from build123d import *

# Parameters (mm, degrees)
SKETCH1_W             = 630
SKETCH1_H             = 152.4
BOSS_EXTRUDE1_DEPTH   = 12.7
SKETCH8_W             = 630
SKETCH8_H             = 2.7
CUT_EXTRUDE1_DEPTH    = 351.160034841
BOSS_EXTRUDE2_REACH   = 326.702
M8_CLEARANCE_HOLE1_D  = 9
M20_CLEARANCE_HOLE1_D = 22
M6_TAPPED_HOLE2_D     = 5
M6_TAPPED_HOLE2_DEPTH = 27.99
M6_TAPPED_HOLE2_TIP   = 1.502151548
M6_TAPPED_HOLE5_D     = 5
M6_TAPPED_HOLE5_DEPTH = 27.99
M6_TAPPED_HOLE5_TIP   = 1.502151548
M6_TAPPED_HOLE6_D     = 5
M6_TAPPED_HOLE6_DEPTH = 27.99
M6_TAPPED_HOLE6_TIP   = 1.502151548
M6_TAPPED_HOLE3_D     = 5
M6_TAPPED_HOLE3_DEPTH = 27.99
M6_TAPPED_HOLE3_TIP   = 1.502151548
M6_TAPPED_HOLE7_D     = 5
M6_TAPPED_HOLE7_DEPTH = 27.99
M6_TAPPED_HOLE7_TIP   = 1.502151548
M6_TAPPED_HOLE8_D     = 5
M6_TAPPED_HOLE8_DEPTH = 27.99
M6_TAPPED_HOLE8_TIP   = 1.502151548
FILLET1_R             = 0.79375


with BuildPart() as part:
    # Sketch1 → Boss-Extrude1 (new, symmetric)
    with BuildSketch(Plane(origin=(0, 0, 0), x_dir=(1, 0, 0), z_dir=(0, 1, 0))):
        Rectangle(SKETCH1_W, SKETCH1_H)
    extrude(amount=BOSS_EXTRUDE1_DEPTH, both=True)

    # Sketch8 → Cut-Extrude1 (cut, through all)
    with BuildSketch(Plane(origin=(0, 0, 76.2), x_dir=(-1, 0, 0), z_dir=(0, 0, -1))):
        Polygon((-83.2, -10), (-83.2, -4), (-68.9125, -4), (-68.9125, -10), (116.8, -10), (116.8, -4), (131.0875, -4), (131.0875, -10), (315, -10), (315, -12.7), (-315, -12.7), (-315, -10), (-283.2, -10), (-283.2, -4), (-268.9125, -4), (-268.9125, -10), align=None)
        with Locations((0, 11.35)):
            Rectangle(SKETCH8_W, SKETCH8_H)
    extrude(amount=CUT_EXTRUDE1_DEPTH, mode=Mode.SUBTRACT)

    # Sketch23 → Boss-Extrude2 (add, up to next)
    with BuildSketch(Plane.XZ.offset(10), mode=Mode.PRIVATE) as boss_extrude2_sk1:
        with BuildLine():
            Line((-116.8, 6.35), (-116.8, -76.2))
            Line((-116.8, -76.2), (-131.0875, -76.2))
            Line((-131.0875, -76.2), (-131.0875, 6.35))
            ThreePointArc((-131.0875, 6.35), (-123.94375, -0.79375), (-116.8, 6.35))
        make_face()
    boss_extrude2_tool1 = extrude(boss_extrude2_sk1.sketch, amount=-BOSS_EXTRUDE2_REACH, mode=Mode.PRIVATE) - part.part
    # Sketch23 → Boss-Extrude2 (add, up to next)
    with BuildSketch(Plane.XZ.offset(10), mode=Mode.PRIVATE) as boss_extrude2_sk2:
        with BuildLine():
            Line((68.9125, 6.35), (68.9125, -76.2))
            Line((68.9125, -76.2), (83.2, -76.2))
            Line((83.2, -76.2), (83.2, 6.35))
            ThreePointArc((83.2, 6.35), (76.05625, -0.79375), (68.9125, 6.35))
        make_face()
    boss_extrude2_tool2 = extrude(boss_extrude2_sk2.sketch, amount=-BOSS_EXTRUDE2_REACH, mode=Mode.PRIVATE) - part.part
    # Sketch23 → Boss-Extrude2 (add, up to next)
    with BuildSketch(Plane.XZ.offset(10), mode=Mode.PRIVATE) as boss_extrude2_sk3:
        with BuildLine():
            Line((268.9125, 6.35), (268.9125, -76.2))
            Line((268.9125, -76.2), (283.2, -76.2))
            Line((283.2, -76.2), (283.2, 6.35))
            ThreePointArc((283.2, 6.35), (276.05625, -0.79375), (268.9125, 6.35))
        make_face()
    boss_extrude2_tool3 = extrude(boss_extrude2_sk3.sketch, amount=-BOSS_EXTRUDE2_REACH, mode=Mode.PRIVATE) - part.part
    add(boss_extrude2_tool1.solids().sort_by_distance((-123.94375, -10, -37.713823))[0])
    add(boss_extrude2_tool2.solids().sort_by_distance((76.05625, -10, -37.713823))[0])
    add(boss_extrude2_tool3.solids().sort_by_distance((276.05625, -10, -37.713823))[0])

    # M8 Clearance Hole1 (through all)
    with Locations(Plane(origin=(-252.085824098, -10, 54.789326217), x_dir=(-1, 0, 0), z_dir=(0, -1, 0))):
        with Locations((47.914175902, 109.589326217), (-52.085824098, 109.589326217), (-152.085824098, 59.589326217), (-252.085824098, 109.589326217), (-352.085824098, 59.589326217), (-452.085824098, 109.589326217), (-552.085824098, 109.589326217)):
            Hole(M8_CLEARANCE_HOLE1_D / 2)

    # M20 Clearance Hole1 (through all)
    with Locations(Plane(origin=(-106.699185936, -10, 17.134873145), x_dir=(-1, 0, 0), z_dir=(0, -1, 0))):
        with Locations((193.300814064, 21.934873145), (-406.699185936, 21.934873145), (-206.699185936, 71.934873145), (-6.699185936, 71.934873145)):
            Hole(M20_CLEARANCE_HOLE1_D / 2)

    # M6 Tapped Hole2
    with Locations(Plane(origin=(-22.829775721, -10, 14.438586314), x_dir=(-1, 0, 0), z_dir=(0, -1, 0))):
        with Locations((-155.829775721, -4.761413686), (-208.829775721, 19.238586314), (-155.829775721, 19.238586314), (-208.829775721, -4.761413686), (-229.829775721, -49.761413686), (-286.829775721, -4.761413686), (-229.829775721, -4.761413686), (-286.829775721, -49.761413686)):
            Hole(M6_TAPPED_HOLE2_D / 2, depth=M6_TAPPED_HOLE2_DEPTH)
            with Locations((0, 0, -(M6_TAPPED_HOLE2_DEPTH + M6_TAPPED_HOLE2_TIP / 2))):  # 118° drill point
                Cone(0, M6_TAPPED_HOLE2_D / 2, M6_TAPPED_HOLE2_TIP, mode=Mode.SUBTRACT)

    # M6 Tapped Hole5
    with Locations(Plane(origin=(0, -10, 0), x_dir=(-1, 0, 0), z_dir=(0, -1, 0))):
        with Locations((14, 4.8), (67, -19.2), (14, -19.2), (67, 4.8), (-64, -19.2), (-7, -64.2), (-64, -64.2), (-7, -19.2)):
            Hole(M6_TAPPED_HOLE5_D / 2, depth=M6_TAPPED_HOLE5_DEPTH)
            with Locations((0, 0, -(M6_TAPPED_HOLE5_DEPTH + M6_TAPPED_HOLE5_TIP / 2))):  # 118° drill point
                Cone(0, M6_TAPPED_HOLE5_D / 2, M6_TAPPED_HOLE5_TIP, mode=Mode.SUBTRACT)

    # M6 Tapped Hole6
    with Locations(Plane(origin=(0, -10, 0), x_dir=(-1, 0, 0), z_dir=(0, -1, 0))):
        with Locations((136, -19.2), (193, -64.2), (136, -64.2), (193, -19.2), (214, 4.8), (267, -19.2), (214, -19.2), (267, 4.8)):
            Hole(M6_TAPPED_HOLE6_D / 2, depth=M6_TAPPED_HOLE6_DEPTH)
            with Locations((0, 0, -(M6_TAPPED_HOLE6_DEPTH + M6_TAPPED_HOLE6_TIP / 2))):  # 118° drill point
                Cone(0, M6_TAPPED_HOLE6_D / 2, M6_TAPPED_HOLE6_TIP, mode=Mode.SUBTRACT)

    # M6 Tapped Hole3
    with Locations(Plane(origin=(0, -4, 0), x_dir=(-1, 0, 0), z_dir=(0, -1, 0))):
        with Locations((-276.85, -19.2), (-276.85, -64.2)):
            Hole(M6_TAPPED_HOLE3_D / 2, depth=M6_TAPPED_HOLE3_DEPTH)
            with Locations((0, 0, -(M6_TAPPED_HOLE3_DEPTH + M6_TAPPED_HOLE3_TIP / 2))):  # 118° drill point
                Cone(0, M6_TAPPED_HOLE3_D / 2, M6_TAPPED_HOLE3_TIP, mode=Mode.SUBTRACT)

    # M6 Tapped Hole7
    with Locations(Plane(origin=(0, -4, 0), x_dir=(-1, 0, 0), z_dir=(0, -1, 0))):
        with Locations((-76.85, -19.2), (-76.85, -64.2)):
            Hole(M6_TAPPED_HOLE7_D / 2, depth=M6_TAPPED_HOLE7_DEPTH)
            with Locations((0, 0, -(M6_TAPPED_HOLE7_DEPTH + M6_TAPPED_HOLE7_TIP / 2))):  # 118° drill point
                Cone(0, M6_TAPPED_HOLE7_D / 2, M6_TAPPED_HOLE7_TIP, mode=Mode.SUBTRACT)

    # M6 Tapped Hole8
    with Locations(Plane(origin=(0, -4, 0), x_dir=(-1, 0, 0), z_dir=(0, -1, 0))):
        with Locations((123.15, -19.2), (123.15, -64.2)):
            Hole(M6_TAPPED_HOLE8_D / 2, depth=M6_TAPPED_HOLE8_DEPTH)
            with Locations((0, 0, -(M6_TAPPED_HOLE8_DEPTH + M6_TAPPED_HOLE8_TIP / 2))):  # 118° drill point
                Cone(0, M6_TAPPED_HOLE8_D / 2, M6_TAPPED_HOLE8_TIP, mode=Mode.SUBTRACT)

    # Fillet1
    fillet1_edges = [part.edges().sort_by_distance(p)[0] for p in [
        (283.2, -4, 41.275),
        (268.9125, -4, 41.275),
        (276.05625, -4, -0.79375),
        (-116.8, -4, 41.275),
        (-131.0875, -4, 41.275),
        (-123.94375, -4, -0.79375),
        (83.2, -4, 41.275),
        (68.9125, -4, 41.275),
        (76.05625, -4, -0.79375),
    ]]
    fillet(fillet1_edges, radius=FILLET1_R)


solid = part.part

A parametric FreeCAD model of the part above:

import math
import FreeCAD as App
import Part
import Sketcher
Q = App.Units.Quantity


def edges_at(feature, points):
    """Names of the edges that pass closest to the given points."""
    edges = feature.Shape.Edges
    near = lambda p: min(range(len(edges)), key=lambda i: edges[i].distToShape(Part.Vertex(*p))[0])
    return sorted({f"Edge{near(p) + 1}" for p in points})

doc = App.newDocument("Part")
body = doc.addObject("PartDesign::Body", "Body")

sketch1 = body.newObject("Sketcher::SketchObject", "Sketch")
sketch1.AttachmentSupport = (doc.getObject("XZ_Plane"), [""])
sketch1.MapMode = "FlatFace"
sketch1.addGeometry([
    Part.LineSegment(App.Vector(-315, -76, 0), App.Vector(-315, 76, 0)),
    Part.LineSegment(App.Vector(-315, 76, 0), App.Vector(315, 76, 0)),
    Part.LineSegment(App.Vector(315, 76, 0), App.Vector(315, -76, 0)),
    Part.LineSegment(App.Vector(315, -76, 0), App.Vector(-315, -76, 0)),
], False)
sketch1.addConstraint([
    Sketcher.Constraint("Coincident", 0, 2, 1, 1),
    Sketcher.Constraint("Coincident", 1, 2, 2, 1),
    Sketcher.Constraint("Coincident", 2, 2, 3, 1),
    Sketcher.Constraint("Coincident", 3, 2, 0, 1),
    Sketcher.Constraint("Vertical", 0),
    Sketcher.Constraint("Horizontal", 1),
    Sketcher.Constraint("Vertical", 2),
    Sketcher.Constraint("Horizontal", 3),
    Sketcher.Constraint("Symmetric", 0, 2, 2, 2, -1, 1),
    Sketcher.Constraint("DistanceX", 1, 1, 1, 2, Q("630 mm")),
    Sketcher.Constraint("DistanceY", 0, 1, 0, 2, Q("152.4 mm")),
])
pad1 = body.newObject("PartDesign::Pad", "Pad")
pad1.Profile = sketch1
pad1.Length = 25.4
pad1.Midplane = True

sketch2 = body.newObject("Sketcher::SketchObject", "Sketch001")
sketch2.AttachmentSupport = (doc.getObject("XY_Plane"), [""])
sketch2.MapMode = "FlatFace"
sketch2.AttachmentOffset = App.Placement(App.Vector(0, 0, 76.2), App.Rotation())
sketch2.addGeometry([
    Part.LineSegment(App.Vector(83.2, -4, 0), App.Vector(83.2, -10, 0)),
    Part.LineSegment(App.Vector(83.2, -10, 0), App.Vector(268.9, -10, 0)),
    Part.LineSegment(App.Vector(268.9, -10, 0), App.Vector(268.9, -4, 0)),
    Part.LineSegment(App.Vector(268.9, -4, 0), App.Vector(283.2, -4, 0)),
    Part.LineSegment(App.Vector(283.2, -4, 0), App.Vector(283.2, -10, 0)),
    Part.LineSegment(App.Vector(283.2, -10, 0), App.Vector(315, -10, 0)),
    Part.LineSegment(App.Vector(315, -10, 0), App.Vector(315, -12.7, 0)),
    Part.LineSegment(App.Vector(315, -12.7, 0), App.Vector(-315, -12.7, 0)),
    Part.LineSegment(App.Vector(-315, -12.7, 0), App.Vector(-315, -10, 0)),
    Part.LineSegment(App.Vector(-315, -10, 0), App.Vector(-131.1, -10, 0)),
    Part.LineSegment(App.Vector(-131.1, -10, 0), App.Vector(-131.1, -4, 0)),
    Part.LineSegment(App.Vector(-131.1, -4, 0), App.Vector(-116.8, -4, 0)),
    Part.LineSegment(App.Vector(-116.8, -4, 0), App.Vector(-116.8, -10, 0)),
    Part.LineSegment(App.Vector(-116.8, -10, 0), App.Vector(68.9, -10, 0)),
    Part.LineSegment(App.Vector(68.9, -10, 0), App.Vector(68.9, -4, 0)),
    Part.LineSegment(App.Vector(68.9, -4, 0), App.Vector(83.2, -4, 0)),
    Part.LineSegment(App.Vector(315, 12.7, 0), App.Vector(315, 10, 0)),
    Part.LineSegment(App.Vector(315, 10, 0), App.Vector(-315, 10, 0)),
    Part.LineSegment(App.Vector(-315, 10, 0), App.Vector(-315, 12.7, 0)),
    Part.LineSegment(App.Vector(-315, 12.7, 0), App.Vector(315, 12.7, 0)),
], False)
sketch2.addConstraint([
    Sketcher.Constraint("Coincident", 0, 2, 1, 1),
    Sketcher.Constraint("Coincident", 1, 2, 2, 1),
    Sketcher.Constraint("Coincident", 2, 2, 3, 1),
    Sketcher.Constraint("Coincident", 3, 2, 4, 1),
    Sketcher.Constraint("Coincident", 4, 2, 5, 1),
    Sketcher.Constraint("Coincident", 5, 2, 6, 1),
    Sketcher.Constraint("Coincident", 6, 2, 7, 1),
    Sketcher.Constraint("Coincident", 7, 2, 8, 1),
    Sketcher.Constraint("Coincident", 8, 2, 9, 1),
    Sketcher.Constraint("Coincident", 9, 2, 10, 1),
    Sketcher.Constraint("Coincident", 10, 2, 11, 1),
    Sketcher.Constraint("Coincident", 11, 2, 12, 1),
    Sketcher.Constraint("Coincident", 12, 2, 13, 1),
    Sketcher.Constraint("Coincident", 13, 2, 14, 1),
    Sketcher.Constraint("Coincident", 14, 2, 15, 1),
    Sketcher.Constraint("Coincident", 15, 2, 0, 1),
    Sketcher.Constraint("Coincident", 16, 2, 17, 1),
    Sketcher.Constraint("Coincident", 17, 2, 18, 1),
    Sketcher.Constraint("Coincident", 18, 2, 19, 1),
    Sketcher.Constraint("Coincident", 19, 2, 16, 1),
    Sketcher.Constraint("Vertical", 0),
    Sketcher.Constraint("Horizontal", 1),
    Sketcher.Constraint("Vertical", 2),
    Sketcher.Constraint("Horizontal", 3),
    Sketcher.Constraint("Vertical", 4),
    Sketcher.Constraint("Horizontal", 5),
    Sketcher.Constraint("Vertical", 6),
    Sketcher.Constraint("Horizontal", 7),
    Sketcher.Constraint("Vertical", 8),
    Sketcher.Constraint("Horizontal", 9),
    Sketcher.Constraint("Vertical", 10),
    Sketcher.Constraint("Horizontal", 11),
    Sketcher.Constraint("Vertical", 12),
    Sketcher.Constraint("Horizontal", 13),
    Sketcher.Constraint("Vertical", 14),
    Sketcher.Constraint("Horizontal", 15),
    Sketcher.Constraint("Vertical", 16),
    Sketcher.Constraint("Horizontal", 17),
    Sketcher.Constraint("Vertical", 18),
    Sketcher.Constraint("Horizontal", 19),
    Sketcher.Constraint("Symmetric", 8, 2, 16, 2, -1, 1),
    Sketcher.Constraint("Symmetric", 5, 2, 17, 2, -1, 1),
    Sketcher.Constraint("Symmetric", 7, 2, 18, 2, -1),
    Sketcher.Constraint("Horizontal", 1, 2, 4, 2),
    Sketcher.Constraint("Horizontal", 3, 2, 10, 2),
    Sketcher.Constraint("Horizontal", 9, 2, 12, 2),
    Sketcher.Constraint("Horizontal", 11, 2, 14, 2),
    Sketcher.Constraint("Equal", 3, 11),
    Sketcher.Constraint("Equal", 1, 13),
    Sketcher.Constraint("Equal", 11, 15),
    Sketcher.Constraint("DistanceX", 7, 2, 7, 1, Q("630 mm")),
    Sketcher.Constraint("DistanceY", 0, 2, 0, 1, Q("6 mm")),
    Sketcher.Constraint("DistanceX", 5, 1, 5, 2, Q("31.8 mm")),
    Sketcher.Constraint("DistanceY", 6, 2, 6, 1, Q("2.7 mm")),
    Sketcher.Constraint("DistanceY", 0, 2, -1, 1, Q("10 mm")),
    Sketcher.Constraint("DistanceX", 0, 2, 3, 2, Q("200 mm")),
    Sketcher.Constraint("DistanceX", 1, 1, 1, 2, Q("185.7125 mm")),
])
pocket1 = body.newObject("PartDesign::Pocket", "Pocket")
pocket1.Profile = sketch2
pocket1.Type = "ThroughAll"

sketch3 = body.newObject("Sketcher::SketchObject", "Sketch002")
sketch3.AttachmentSupport = (doc.getObject("XZ_Plane"), [""])
sketch3.MapMode = "FlatFace"
sketch3.AttachmentOffset = App.Placement(App.Vector(0, 0, 10), App.Rotation())
sketch3.addGeometry([
    Part.LineSegment(App.Vector(-117, -76, 0), App.Vector(-117, 6, 0)),
    Part.ArcOfCircle(Part.Circle(App.Vector(-124, 6, 0), App.Vector(0, 0, 1), 7), math.radians(180), math.radians(360)),
    Part.LineSegment(App.Vector(-131, 6, 0), App.Vector(-131, -76, 0)),
    Part.LineSegment(App.Vector(-131, -76, 0), App.Vector(-117, -76, 0)),
], False)
sketch3.addConstraint([
    Sketcher.Constraint("Tangent", 0, 2, 1, 2),
    Sketcher.Constraint("Tangent", 1, 1, 2, 1),
    Sketcher.Constraint("Coincident", 2, 2, 3, 1),
    Sketcher.Constraint("Coincident", 3, 2, 0, 1),
    Sketcher.Constraint("Vertical", 0),
    Sketcher.Constraint("Vertical", 2),
    Sketcher.Constraint("Horizontal", 3),
    Sketcher.Constraint("DistanceY", 0, 1, 0, 2, Q("82.55 mm")),
    Sketcher.Constraint("DistanceX", 0, 2, -1, 1, Q("116.8 mm")),
    Sketcher.Constraint("DistanceY", 2, 2, -1, 1, Q("76.2 mm")),
    Sketcher.Constraint("Radius", 1, Q("7.14375 mm")),
])
pad2 = body.newObject("PartDesign::Pad", "Pad001")
pad2.Profile = sketch3
pad2.Type = "UpToFirst"
pad2.Reversed = True

sketch4 = body.newObject("Sketcher::SketchObject", "Sketch003")
sketch4.AttachmentSupport = (doc.getObject("XZ_Plane"), [""])
sketch4.MapMode = "FlatFace"
sketch4.AttachmentOffset = App.Placement(App.Vector(0, 0, 10), App.Rotation())
sketch4.addGeometry([
    Part.LineSegment(App.Vector(69, 6, 0), App.Vector(69, -76, 0)),
    Part.LineSegment(App.Vector(69, -76, 0), App.Vector(83, -76, 0)),
    Part.LineSegment(App.Vector(83, -76, 0), App.Vector(83, 6, 0)),
    Part.ArcOfCircle(Part.Circle(App.Vector(76, 6, 0), App.Vector(0, 0, 1), 7), math.radians(180), math.radians(360)),
], False)
sketch4.addConstraint([
    Sketcher.Constraint("Coincident", 0, 2, 1, 1),
    Sketcher.Constraint("Coincident", 1, 2, 2, 1),
    Sketcher.Constraint("Tangent", 2, 2, 3, 2),
    Sketcher.Constraint("Tangent", 3, 1, 0, 1),
    Sketcher.Constraint("Vertical", 0),
    Sketcher.Constraint("Horizontal", 1),
    Sketcher.Constraint("Vertical", 2),
    Sketcher.Constraint("DistanceY", 0, 2, 0, 1, Q("82.55 mm")),
    Sketcher.Constraint("DistanceY", 0, 2, -1, 1, Q("76.2 mm")),
    Sketcher.Constraint("DistanceX", -1, 1, 1, 2, Q("83.2 mm")),
    Sketcher.Constraint("Radius", 3, Q("7.14375 mm")),
])
pad3 = body.newObject("PartDesign::Pad", "Pad002")
pad3.Profile = sketch4
pad3.Type = "UpToFirst"
pad3.Reversed = True

sketch5 = body.newObject("Sketcher::SketchObject", "Sketch004")
sketch5.AttachmentSupport = (doc.getObject("XZ_Plane"), [""])
sketch5.MapMode = "FlatFace"
sketch5.AttachmentOffset = App.Placement(App.Vector(0, 0, 10), App.Rotation())
sketch5.addGeometry([
    Part.LineSegment(App.Vector(269, 6, 0), App.Vector(269, -76, 0)),
    Part.LineSegment(App.Vector(269, -76, 0), App.Vector(283, -76, 0)),
    Part.LineSegment(App.Vector(283, -76, 0), App.Vector(283, 6, 0)),
    Part.ArcOfCircle(Part.Circle(App.Vector(276, 6, 0), App.Vector(0, 0, 1), 7), math.radians(180), math.radians(360)),
], False)
sketch5.addConstraint([
    Sketcher.Constraint("Coincident", 0, 2, 1, 1),
    Sketcher.Constraint("Coincident", 1, 2, 2, 1),
    Sketcher.Constraint("Tangent", 2, 2, 3, 2),
    Sketcher.Constraint("Tangent", 3, 1, 0, 1),
    Sketcher.Constraint("Vertical", 0),
    Sketcher.Constraint("Horizontal", 1),
    Sketcher.Constraint("Vertical", 2),
    Sketcher.Constraint("DistanceY", 0, 2, 0, 1, Q("82.55 mm")),
    Sketcher.Constraint("DistanceY", 0, 2, -1, 1, Q("76.2 mm")),
    Sketcher.Constraint("DistanceX", -1, 1, 1, 2, Q("283.2 mm")),
    Sketcher.Constraint("Radius", 3, Q("7.14375 mm")),
])
pad4 = body.newObject("PartDesign::Pad", "Pad003")
pad4.Profile = sketch5
pad4.Type = "UpToFirst"
pad4.Reversed = True

sketch6 = body.newObject("Sketcher::SketchObject", "Sketch005")
sketch6.AttachmentSupport = (doc.getObject("XZ_Plane"), [""])
sketch6.MapMode = "FlatFace"
sketch6.AttachmentOffset = App.Placement(App.Vector(0, 0, 10), App.Rotation())
sketch6.addGeometry([
    Part.Circle(App.Vector(-300, -54.8, 0), App.Vector(0, 0, 1), 4.5),
    Part.Circle(App.Vector(-200, -54.8, 0), App.Vector(0, 0, 1), 4.5),
    Part.Circle(App.Vector(-100, -4.8, 0), App.Vector(0, 0, 1), 4.5),
    Part.Circle(App.Vector(0, -54.8, 0), App.Vector(0, 0, 1), 4.5),
    Part.Circle(App.Vector(100, -4.8, 0), App.Vector(0, 0, 1), 4.5),
    Part.Circle(App.Vector(200, -54.8, 0), App.Vector(0, 0, 1), 4.5),
    Part.Circle(App.Vector(300, -54.8, 0), App.Vector(0, 0, 1), 4.5),
], False)
sketch6.addConstraint([
    Sketcher.Constraint("Equal", 0, 1),
    Sketcher.Constraint("Equal", 1, 2),
    Sketcher.Constraint("Equal", 2, 3),
    Sketcher.Constraint("Equal", 3, 4),
    Sketcher.Constraint("Equal", 4, 5),
    Sketcher.Constraint("Equal", 5, 6),
    Sketcher.Constraint("Symmetric", 2, 3, 4, 3, -2),
    Sketcher.Constraint("Symmetric", 1, 3, 5, 3, -2),
    Sketcher.Constraint("Symmetric", 0, 3, 6, 3, -2),
    Sketcher.Constraint("PointOnObject", 3, 3, -2),
    Sketcher.Constraint("Horizontal", 0, 3, 1, 3),
    Sketcher.Constraint("Horizontal", 1, 3, 3, 3),
    Sketcher.Constraint("Diameter", 0, Q("9 mm")),
    Sketcher.Constraint("DistanceX", 0, 3, -1, 1, Q("300 mm")),
    Sketcher.Constraint("DistanceX", 1, 3, -1, 1, Q("200 mm")),
    Sketcher.Constraint("DistanceX", 2, 3, -1, 1, Q("100 mm")),
    Sketcher.Constraint("DistanceY", 1, 3, 2, 3, Q("50 mm")),
    Sketcher.Constraint("DistanceY", 0, 3, -1, 1, Q("54.8 mm")),
])
doc.recompute()
hole = body.newObject("PartDesign::Hole", "Hole")
hole.Profile = sketch6
hole.ThreadType = "None"
hole.Diameter = 9
hole.DepthType = "ThroughAll"

sketch7 = body.newObject("Sketcher::SketchObject", "Sketch006")
sketch7.AttachmentSupport = (doc.getObject("XZ_Plane"), [""])
sketch7.MapMode = "FlatFace"
sketch7.AttachmentOffset = App.Placement(App.Vector(0, 0, 10), App.Rotation())
sketch7.addGeometry([
    Part.Circle(App.Vector(-300, -5, 0), App.Vector(0, 0, 1), 11),
    Part.Circle(App.Vector(300, -5, 0), App.Vector(0, 0, 1), 11),
    Part.Circle(App.Vector(100, -55, 0), App.Vector(0, 0, 1), 11),
    Part.Circle(App.Vector(-100, -55, 0), App.Vector(0, 0, 1), 11),
], False)
sketch7.addConstraint([
    Sketcher.Constraint("Equal", 0, 1),
    Sketcher.Constraint("Equal", 1, 2),
    Sketcher.Constraint("Equal", 2, 3),
    Sketcher.Constraint("Symmetric", 0, 3, 1, 3, -2),
    Sketcher.Constraint("Symmetric", 2, 3, 3, 3, -2),
    Sketcher.Constraint("Diameter", 0, Q("22 mm")),
    Sketcher.Constraint("DistanceX", 0, 3, -1, 1, Q("300 mm")),
    Sketcher.Constraint("DistanceX", -1, 1, 2, 3, Q("100 mm")),
    Sketcher.Constraint("DistanceY", 2, 3, 1, 3, Q("50 mm")),
    Sketcher.Constraint("DistanceY", 0, 3, -1, 1, Q("4.8 mm")),
])
doc.recompute()
hole2 = body.newObject("PartDesign::Hole", "Hole001")
hole2.Profile = sketch7
hole2.ThreadType = "None"
hole2.Diameter = 22
hole2.DepthType = "ThroughAll"

sketch8 = body.newObject("Sketcher::SketchObject", "Sketch007")
sketch8.AttachmentSupport = (doc.getObject("XZ_Plane"), [""])
sketch8.MapMode = "FlatFace"
sketch8.AttachmentOffset = App.Placement(App.Vector(0, 0, 10), App.Rotation())
sketch8.addGeometry([
    Part.Circle(App.Vector(133, 19.2, 0), App.Vector(0, 0, 1), 2.5),
    Part.Circle(App.Vector(186, -4.8, 0), App.Vector(0, 0, 1), 2.5),
    Part.Circle(App.Vector(133, -4.8, 0), App.Vector(0, 0, 1), 2.5),
    Part.Circle(App.Vector(186, 19.2, 0), App.Vector(0, 0, 1), 2.5),
    Part.Circle(App.Vector(207, 64.2, 0), App.Vector(0, 0, 1), 2.5),
    Part.Circle(App.Vector(264, 19.2, 0), App.Vector(0, 0, 1), 2.5),
    Part.Circle(App.Vector(207, 19.2, 0), App.Vector(0, 0, 1), 2.5),
    Part.Circle(App.Vector(264, 64.2, 0), App.Vector(0, 0, 1), 2.5),
], False)
sketch8.addConstraint([
    Sketcher.Constraint("Equal", 0, 1),
    Sketcher.Constraint("Equal", 1, 2),
    Sketcher.Constraint("Equal", 2, 3),
    Sketcher.Constraint("Equal", 3, 4),
    Sketcher.Constraint("Equal", 4, 5),
    Sketcher.Constraint("Equal", 5, 6),
    Sketcher.Constraint("Equal", 6, 7),
    Sketcher.Constraint("Horizontal", 1, 3, 2, 3),
    Sketcher.Constraint("Horizontal", 0, 3, 3, 3),
    Sketcher.Constraint("Horizontal", 3, 3, 5, 3),
    Sketcher.Constraint("Horizontal", 5, 3, 6, 3),
    Sketcher.Constraint("Horizontal", 4, 3, 7, 3),
    Sketcher.Constraint("Vertical", 0, 3, 2, 3),
    Sketcher.Constraint("Vertical", 1, 3, 3, 3),
    Sketcher.Constraint("Vertical", 4, 3, 6, 3),
    Sketcher.Constraint("Vertical", 5, 3, 7, 3),
    Sketcher.Constraint("Diameter", 0, Q("5 mm")),
    Sketcher.Constraint("DistanceX", -1, 1, 0, 3, Q("133 mm")),
    Sketcher.Constraint("DistanceX", -1, 1, 1, 3, Q("186 mm")),
    Sketcher.Constraint("DistanceX", -1, 1, 4, 3, Q("207 mm")),
    Sketcher.Constraint("DistanceX", -1, 1, 5, 3, Q("264 mm")),
    Sketcher.Constraint("DistanceY", 1, 3, 0, 3, Q("24 mm")),
    Sketcher.Constraint("DistanceY", 3, 3, 4, 3, Q("45 mm")),
    Sketcher.Constraint("DistanceY", -1, 1, 0, 3, Q("19.2 mm")),
])
doc.recompute()
hole3 = body.newObject("PartDesign::Hole", "Hole002")
hole3.Profile = sketch8
hole3.ThreadType = "None"
hole3.Diameter = 5
hole3.DepthType = "Dimension"
hole3.Depth = 27.99
hole3.DrillPoint = "Angled"
hole3.DrillPointAngle = 118

sketch9 = body.newObject("Sketcher::SketchObject", "Sketch008")
sketch9.AttachmentSupport = (doc.getObject("XZ_Plane"), [""])
sketch9.MapMode = "FlatFace"
sketch9.AttachmentOffset = App.Placement(App.Vector(0, 0, 10), App.Rotation())
sketch9.addGeometry([
    Part.Circle(App.Vector(-14, -4.8, 0), App.Vector(0, 0, 1), 2.5),
    Part.Circle(App.Vector(-67, 19.2, 0), App.Vector(0, 0, 1), 2.5),
    Part.Circle(App.Vector(-14, 19.2, 0), App.Vector(0, 0, 1), 2.5),
    Part.Circle(App.Vector(-67, -4.8, 0), App.Vector(0, 0, 1), 2.5),
    Part.Circle(App.Vector(64, 19.2, 0), App.Vector(0, 0, 1), 2.5),
    Part.Circle(App.Vector(7, 64.2, 0), App.Vector(0, 0, 1), 2.5),
    Part.Circle(App.Vector(64, 64.2, 0), App.Vector(0, 0, 1), 2.5),
    Part.Circle(App.Vector(7, 19.2, 0), App.Vector(0, 0, 1), 2.5),
], False)
sketch9.addConstraint([
    Sketcher.Constraint("Equal", 0, 1),
    Sketcher.Constraint("Equal", 1, 2),
    Sketcher.Constraint("Equal", 2, 3),
    Sketcher.Constraint("Equal", 3, 4),
    Sketcher.Constraint("Equal", 4, 5),
    Sketcher.Constraint("Equal", 5, 6),
    Sketcher.Constraint("Equal", 6, 7),
    Sketcher.Constraint("Horizontal", 1, 3, 2, 3),
    Sketcher.Constraint("Horizontal", 0, 3, 3, 3),
    Sketcher.Constraint("Horizontal", 2, 3, 4, 3),
    Sketcher.Constraint("Horizontal", 5, 3, 6, 3),
    Sketcher.Constraint("Horizontal", 4, 3, 7, 3),
    Sketcher.Constraint("Vertical", 0, 3, 2, 3),
    Sketcher.Constraint("Vertical", 1, 3, 3, 3),
    Sketcher.Constraint("Vertical", 4, 3, 6, 3),
    Sketcher.Constraint("Vertical", 5, 3, 7, 3),
    Sketcher.Constraint("Diameter", 0, Q("5 mm")),
    Sketcher.Constraint("DistanceX", 0, 3, -1, 1, Q("14 mm")),
    Sketcher.Constraint("DistanceX", 1, 3, -1, 1, Q("67 mm")),
    Sketcher.Constraint("DistanceX", -1, 1, 4, 3, Q("64 mm")),
    Sketcher.Constraint("DistanceX", -1, 1, 5, 3, Q("7 mm")),
    Sketcher.Constraint("DistanceY", 0, 3, 1, 3, Q("24 mm")),
    Sketcher.Constraint("DistanceY", 2, 3, 5, 3, Q("45 mm")),
    Sketcher.Constraint("DistanceY", 0, 3, -1, 1, Q("4.8 mm")),
])
doc.recompute()
hole4 = body.newObject("PartDesign::Hole", "Hole003")
hole4.Profile = sketch9
hole4.ThreadType = "None"
hole4.Diameter = 5
hole4.DepthType = "Dimension"
hole4.Depth = 27.99
hole4.DrillPoint = "Angled"
hole4.DrillPointAngle = 118

sketch10 = body.newObject("Sketcher::SketchObject", "Sketch009")
sketch10.AttachmentSupport = (doc.getObject("XZ_Plane"), [""])
sketch10.MapMode = "FlatFace"
sketch10.AttachmentOffset = App.Placement(App.Vector(0, 0, 10), App.Rotation())
sketch10.addGeometry([
    Part.Circle(App.Vector(-136, 19.2, 0), App.Vector(0, 0, 1), 2.5),
    Part.Circle(App.Vector(-193, 64.2, 0), App.Vector(0, 0, 1), 2.5),
    Part.Circle(App.Vector(-136, 64.2, 0), App.Vector(0, 0, 1), 2.5),
    Part.Circle(App.Vector(-193, 19.2, 0), App.Vector(0, 0, 1), 2.5),
    Part.Circle(App.Vector(-214, -4.8, 0), App.Vector(0, 0, 1), 2.5),
    Part.Circle(App.Vector(-267, 19.2, 0), App.Vector(0, 0, 1), 2.5),
    Part.Circle(App.Vector(-214, 19.2, 0), App.Vector(0, 0, 1), 2.5),
    Part.Circle(App.Vector(-267, -4.8, 0), App.Vector(0, 0, 1), 2.5),
], False)
sketch10.addConstraint([
    Sketcher.Constraint("Equal", 0, 1),
    Sketcher.Constraint("Equal", 1, 2),
    Sketcher.Constraint("Equal", 2, 3),
    Sketcher.Constraint("Equal", 3, 4),
    Sketcher.Constraint("Equal", 4, 5),
    Sketcher.Constraint("Equal", 5, 6),
    Sketcher.Constraint("Equal", 6, 7),
    Sketcher.Constraint("Horizontal", 1, 3, 2, 3),
    Sketcher.Constraint("Horizontal", 0, 3, 3, 3),
    Sketcher.Constraint("Horizontal", 3, 3, 5, 3),
    Sketcher.Constraint("Horizontal", 5, 3, 6, 3),
    Sketcher.Constraint("Horizontal", 4, 3, 7, 3),
    Sketcher.Constraint("Vertical", 0, 3, 2, 3),
    Sketcher.Constraint("Vertical", 1, 3, 3, 3),
    Sketcher.Constraint("Vertical", 4, 3, 6, 3),
    Sketcher.Constraint("Vertical", 5, 3, 7, 3),
    Sketcher.Constraint("Diameter", 0, Q("5 mm")),
    Sketcher.Constraint("DistanceX", 0, 3, -1, 1, Q("136 mm")),
    Sketcher.Constraint("DistanceX", 1, 3, -1, 1, Q("193 mm")),
    Sketcher.Constraint("DistanceX", 4, 3, -1, 1, Q("214 mm")),
    Sketcher.Constraint("DistanceX", 5, 3, -1, 1, Q("267 mm")),
    Sketcher.Constraint("DistanceY", 0, 3, 1, 3, Q("45 mm")),
    Sketcher.Constraint("DistanceY", 4, 3, 3, 3, Q("24 mm")),
    Sketcher.Constraint("DistanceY", -1, 1, 0, 3, Q("19.2 mm")),
])
doc.recompute()
hole5 = body.newObject("PartDesign::Hole", "Hole004")
hole5.Profile = sketch10
hole5.ThreadType = "None"
hole5.Diameter = 5
hole5.DepthType = "Dimension"
hole5.Depth = 27.99
hole5.DrillPoint = "Angled"
hole5.DrillPointAngle = 118

sketch11 = body.newObject("Sketcher::SketchObject", "Sketch010")
sketch11.AttachmentSupport = (doc.getObject("XZ_Plane"), [""])
sketch11.MapMode = "FlatFace"
sketch11.AttachmentOffset = App.Placement(App.Vector(0, 0, 4), App.Rotation())
sketch11.addGeometry([
    Part.Circle(App.Vector(276.9, 19.2, 0), App.Vector(0, 0, 1), 2.5),
    Part.Circle(App.Vector(276.9, 64.2, 0), App.Vector(0, 0, 1), 2.5),
], False)
sketch11.addConstraint([
    Sketcher.Constraint("Equal", 0, 1),
    Sketcher.Constraint("Vertical", 0, 3, 1, 3),
    Sketcher.Constraint("Diameter", 0, Q("5 mm")),
    Sketcher.Constraint("DistanceY", 0, 3, 1, 3, Q("45 mm")),
    Sketcher.Constraint("DistanceY", -1, 1, 0, 3, Q("19.2 mm")),
    Sketcher.Constraint("DistanceX", -1, 1, 0, 3, Q("276.85 mm")),
])
doc.recompute()
hole6 = body.newObject("PartDesign::Hole", "Hole005")
hole6.Profile = sketch11
hole6.ThreadType = "None"
hole6.Diameter = 5
hole6.DepthType = "Dimension"
hole6.Depth = 27.99
hole6.DrillPoint = "Angled"
hole6.DrillPointAngle = 118

sketch12 = body.newObject("Sketcher::SketchObject", "Sketch011")
sketch12.AttachmentSupport = (doc.getObject("XZ_Plane"), [""])
sketch12.MapMode = "FlatFace"
sketch12.AttachmentOffset = App.Placement(App.Vector(0, 0, 4), App.Rotation())
sketch12.addGeometry([
    Part.Circle(App.Vector(76.8, 19.2, 0), App.Vector(0, 0, 1), 2.5),
    Part.Circle(App.Vector(76.8, 64.2, 0), App.Vector(0, 0, 1), 2.5),
], False)
sketch12.addConstraint([
    Sketcher.Constraint("Equal", 0, 1),
    Sketcher.Constraint("Vertical", 0, 3, 1, 3),
    Sketcher.Constraint("Diameter", 0, Q("5 mm")),
    Sketcher.Constraint("DistanceY", 0, 3, 1, 3, Q("45 mm")),
    Sketcher.Constraint("DistanceY", -1, 1, 0, 3, Q("19.2 mm")),
    Sketcher.Constraint("DistanceX", -1, 1, 0, 3, Q("76.85 mm")),
])
doc.recompute()
hole7 = body.newObject("PartDesign::Hole", "Hole006")
hole7.Profile = sketch12
hole7.ThreadType = "None"
hole7.Diameter = 5
hole7.DepthType = "Dimension"
hole7.Depth = 27.99
hole7.DrillPoint = "Angled"
hole7.DrillPointAngle = 118

sketch13 = body.newObject("Sketcher::SketchObject", "Sketch012")
sketch13.AttachmentSupport = (doc.getObject("XZ_Plane"), [""])
sketch13.MapMode = "FlatFace"
sketch13.AttachmentOffset = App.Placement(App.Vector(0, 0, 4), App.Rotation())
sketch13.addGeometry([
    Part.Circle(App.Vector(-123.2, 19.2, 0), App.Vector(0, 0, 1), 2.5),
    Part.Circle(App.Vector(-123.2, 64.2, 0), App.Vector(0, 0, 1), 2.5),
], False)
sketch13.addConstraint([
    Sketcher.Constraint("Equal", 0, 1),
    Sketcher.Constraint("Vertical", 0, 3, 1, 3),
    Sketcher.Constraint("Diameter", 0, Q("5 mm")),
    Sketcher.Constraint("DistanceY", 0, 3, 1, 3, Q("45 mm")),
    Sketcher.Constraint("DistanceY", -1, 1, 0, 3, Q("19.2 mm")),
    Sketcher.Constraint("DistanceX", 0, 3, -1, 1, Q("123.15 mm")),
])
doc.recompute()
hole8 = body.newObject("PartDesign::Hole", "Hole007")
hole8.Profile = sketch13
hole8.ThreadType = "None"
hole8.Diameter = 5
hole8.DepthType = "Dimension"
hole8.Depth = 27.99
hole8.DrillPoint = "Angled"
hole8.DrillPointAngle = 118
doc.recompute()

fillet = body.newObject("PartDesign::Fillet", "Fillet")
fillet.Base = (hole8, edges_at(hole8, [
    (283.2, -4, 41.275),
    (268.913, -4, 41.275),
    (276.056, -4, -0.794),
    (-116.8, -4, 41.275),
    (-131.088, -4, 41.275),
    (-123.944, -4, -0.794),
    (83.2, -4, 41.275),
    (68.912, -4, 41.275),
    (76.056, -4, -0.794),
]))
fillet.Radius = 0.79375

doc.recompute()
